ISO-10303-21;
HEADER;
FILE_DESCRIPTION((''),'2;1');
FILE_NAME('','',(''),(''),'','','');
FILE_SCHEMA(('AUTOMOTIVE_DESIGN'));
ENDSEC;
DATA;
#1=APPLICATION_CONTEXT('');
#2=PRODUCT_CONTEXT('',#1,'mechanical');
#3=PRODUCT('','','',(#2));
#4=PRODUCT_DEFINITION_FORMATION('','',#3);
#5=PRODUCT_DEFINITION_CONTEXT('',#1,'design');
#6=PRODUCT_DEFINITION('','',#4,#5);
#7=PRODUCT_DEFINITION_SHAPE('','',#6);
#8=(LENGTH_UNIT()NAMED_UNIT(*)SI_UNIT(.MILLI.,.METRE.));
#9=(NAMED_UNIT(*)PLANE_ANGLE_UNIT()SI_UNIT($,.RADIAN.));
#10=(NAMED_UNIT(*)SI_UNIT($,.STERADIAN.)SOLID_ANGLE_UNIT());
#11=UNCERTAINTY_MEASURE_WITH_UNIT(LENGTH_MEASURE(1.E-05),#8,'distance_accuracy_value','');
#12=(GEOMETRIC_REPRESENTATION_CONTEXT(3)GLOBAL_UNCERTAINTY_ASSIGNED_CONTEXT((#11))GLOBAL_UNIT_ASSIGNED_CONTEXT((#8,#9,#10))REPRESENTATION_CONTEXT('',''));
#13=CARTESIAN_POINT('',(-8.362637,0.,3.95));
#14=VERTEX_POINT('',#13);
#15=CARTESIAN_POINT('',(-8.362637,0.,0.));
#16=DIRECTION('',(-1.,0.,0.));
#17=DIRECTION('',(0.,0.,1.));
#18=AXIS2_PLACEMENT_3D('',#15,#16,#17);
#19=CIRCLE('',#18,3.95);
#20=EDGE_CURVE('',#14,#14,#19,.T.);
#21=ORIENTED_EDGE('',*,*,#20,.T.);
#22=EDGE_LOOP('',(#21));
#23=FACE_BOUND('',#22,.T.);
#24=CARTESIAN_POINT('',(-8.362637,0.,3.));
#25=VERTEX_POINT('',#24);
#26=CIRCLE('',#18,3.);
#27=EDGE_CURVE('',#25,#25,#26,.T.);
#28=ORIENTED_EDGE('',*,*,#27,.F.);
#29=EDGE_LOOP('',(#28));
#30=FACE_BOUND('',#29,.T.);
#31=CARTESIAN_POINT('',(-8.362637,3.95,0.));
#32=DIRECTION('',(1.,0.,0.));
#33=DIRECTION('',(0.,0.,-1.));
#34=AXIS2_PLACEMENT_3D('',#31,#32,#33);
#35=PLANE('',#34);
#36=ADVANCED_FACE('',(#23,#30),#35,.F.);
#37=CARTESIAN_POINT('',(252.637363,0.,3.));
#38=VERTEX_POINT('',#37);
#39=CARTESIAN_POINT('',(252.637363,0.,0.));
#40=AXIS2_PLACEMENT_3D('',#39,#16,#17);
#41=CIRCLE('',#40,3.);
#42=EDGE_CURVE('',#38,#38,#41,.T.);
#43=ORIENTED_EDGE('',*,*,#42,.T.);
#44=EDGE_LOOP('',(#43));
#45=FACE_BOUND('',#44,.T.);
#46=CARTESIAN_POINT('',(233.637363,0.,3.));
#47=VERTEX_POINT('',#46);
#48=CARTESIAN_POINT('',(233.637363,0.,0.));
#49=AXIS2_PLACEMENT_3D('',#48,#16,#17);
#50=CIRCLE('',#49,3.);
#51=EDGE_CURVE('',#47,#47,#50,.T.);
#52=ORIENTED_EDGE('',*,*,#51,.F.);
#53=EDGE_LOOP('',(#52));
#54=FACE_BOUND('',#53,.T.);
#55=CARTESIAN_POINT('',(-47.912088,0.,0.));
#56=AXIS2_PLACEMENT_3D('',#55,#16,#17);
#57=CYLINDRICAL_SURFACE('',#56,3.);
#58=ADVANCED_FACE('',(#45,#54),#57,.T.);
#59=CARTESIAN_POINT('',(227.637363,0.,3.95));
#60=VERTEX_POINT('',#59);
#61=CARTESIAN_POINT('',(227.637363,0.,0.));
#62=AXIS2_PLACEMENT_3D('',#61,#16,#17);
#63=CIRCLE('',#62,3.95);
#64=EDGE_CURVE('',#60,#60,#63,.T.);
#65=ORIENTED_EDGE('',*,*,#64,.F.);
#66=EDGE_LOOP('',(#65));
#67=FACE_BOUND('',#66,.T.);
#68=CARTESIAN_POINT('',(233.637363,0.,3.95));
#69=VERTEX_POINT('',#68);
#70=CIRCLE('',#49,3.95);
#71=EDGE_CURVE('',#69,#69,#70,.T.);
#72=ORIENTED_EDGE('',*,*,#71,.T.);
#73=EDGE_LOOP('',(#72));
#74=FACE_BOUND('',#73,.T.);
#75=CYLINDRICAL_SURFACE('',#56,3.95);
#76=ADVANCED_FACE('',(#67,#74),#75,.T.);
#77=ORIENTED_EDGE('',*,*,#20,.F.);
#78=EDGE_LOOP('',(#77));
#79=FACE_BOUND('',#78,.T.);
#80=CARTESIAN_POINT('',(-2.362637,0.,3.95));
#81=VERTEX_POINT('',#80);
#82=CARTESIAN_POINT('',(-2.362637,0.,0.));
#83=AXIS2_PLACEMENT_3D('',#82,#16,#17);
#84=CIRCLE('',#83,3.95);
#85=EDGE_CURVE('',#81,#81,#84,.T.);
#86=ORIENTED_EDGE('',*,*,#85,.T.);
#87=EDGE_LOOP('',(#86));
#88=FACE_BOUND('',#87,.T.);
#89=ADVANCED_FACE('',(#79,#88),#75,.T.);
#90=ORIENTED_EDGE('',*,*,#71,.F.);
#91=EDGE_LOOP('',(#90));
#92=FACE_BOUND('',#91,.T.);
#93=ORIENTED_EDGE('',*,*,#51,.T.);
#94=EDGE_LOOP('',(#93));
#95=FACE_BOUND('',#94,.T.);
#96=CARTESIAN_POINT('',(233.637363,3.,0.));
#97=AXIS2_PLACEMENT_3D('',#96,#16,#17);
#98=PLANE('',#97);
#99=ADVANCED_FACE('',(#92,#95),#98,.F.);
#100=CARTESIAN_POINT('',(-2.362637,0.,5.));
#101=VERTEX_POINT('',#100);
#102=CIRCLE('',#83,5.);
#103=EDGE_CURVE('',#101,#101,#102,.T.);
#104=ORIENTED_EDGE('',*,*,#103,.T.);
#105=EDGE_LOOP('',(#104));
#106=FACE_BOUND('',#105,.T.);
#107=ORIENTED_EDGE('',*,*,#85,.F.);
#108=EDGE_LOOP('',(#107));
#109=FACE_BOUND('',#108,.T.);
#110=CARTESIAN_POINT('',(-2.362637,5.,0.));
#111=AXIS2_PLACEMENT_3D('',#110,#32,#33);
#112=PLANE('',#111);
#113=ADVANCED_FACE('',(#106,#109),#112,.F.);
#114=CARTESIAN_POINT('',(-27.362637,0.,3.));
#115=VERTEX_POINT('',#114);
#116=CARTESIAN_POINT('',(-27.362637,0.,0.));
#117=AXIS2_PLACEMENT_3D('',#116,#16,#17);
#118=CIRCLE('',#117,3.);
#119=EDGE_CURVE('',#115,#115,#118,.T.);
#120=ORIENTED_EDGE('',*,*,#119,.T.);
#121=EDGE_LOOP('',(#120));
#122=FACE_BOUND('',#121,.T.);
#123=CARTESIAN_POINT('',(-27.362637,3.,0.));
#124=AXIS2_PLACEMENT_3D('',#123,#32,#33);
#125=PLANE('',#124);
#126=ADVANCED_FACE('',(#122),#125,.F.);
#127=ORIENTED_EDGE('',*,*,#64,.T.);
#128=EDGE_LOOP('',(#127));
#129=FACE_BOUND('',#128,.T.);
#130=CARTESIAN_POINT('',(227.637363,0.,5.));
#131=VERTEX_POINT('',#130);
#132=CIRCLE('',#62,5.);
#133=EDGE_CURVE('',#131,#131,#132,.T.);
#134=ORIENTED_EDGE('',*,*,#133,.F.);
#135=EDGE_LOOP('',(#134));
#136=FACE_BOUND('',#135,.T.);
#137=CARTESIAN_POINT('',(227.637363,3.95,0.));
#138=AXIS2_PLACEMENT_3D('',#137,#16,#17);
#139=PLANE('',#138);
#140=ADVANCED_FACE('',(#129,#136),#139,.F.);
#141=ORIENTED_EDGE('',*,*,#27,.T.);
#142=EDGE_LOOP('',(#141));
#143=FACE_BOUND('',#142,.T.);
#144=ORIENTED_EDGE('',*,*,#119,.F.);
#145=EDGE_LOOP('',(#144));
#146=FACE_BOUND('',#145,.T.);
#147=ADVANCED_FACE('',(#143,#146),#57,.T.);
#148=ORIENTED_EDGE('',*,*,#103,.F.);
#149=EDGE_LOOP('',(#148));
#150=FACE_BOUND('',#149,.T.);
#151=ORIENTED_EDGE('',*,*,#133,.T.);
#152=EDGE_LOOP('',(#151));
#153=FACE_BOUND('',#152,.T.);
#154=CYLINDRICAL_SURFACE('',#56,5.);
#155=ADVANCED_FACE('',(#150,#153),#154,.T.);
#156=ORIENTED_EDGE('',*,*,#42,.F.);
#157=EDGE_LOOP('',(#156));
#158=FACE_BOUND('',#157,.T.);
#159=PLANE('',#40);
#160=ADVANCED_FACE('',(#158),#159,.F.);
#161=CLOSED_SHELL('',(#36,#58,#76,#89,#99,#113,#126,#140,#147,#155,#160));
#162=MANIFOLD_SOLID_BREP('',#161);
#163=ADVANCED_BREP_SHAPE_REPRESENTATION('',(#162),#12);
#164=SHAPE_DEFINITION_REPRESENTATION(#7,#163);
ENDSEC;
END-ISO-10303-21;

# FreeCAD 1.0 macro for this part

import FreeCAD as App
import Part
import Sketcher
from FreeCAD import Vector
Q = App.Units.Quantity


def add_polygon(sketch, points):
    """Adds a closed chain of lines whose ends are joined by coincident constraints."""
    first, n = sketch.GeometryCount, len(points)
    for a, b in zip(points, points[1:] + points[:1]):
        sketch.addGeometry(Part.LineSegment(App.Vector(*a, 0), App.Vector(*b, 0)), False)
    for i in range(n):
        sketch.addConstraint(Sketcher.Constraint("Coincident", first + i, 2, first + (i + 1) % n, 1))

doc = App.newDocument("Part")
body = doc.addObject("PartDesign::Body", "Body")

# Sketch on XY plane
sketch1 = body.newObject("Sketcher::SketchObject", "Sketch")
sketch1.AttachmentSupport = (doc.getObject("XY_Plane"), [""])
sketch1.MapMode = "FlatFace"
add_polygon(sketch1, [(-27.362637, 0), (252.637363, 0), (252.637363, 3), (233.637363, 3), (233.637363, 3.95), (227.637363, 3.95), (227.637363, 5), (-2.362637, 5), (-2.362637, 3.95), (-8.362637, 3.95), (-8.362637, 3), (-27.362637, 3)])  # lines 0-11
sketch1.addConstraint(Sketcher.Constraint("Horizontal", 0))
sketch1.addConstraint(Sketcher.Constraint("Vertical", 1))
sketch1.addConstraint(Sketcher.Constraint("Horizontal", 2))
sketch1.addConstraint(Sketcher.Constraint("Vertical", 3))
sketch1.addConstraint(Sketcher.Constraint("Horizontal", 4))
sketch1.addConstraint(Sketcher.Constraint("Vertical", 5))
sketch1.addConstraint(Sketcher.Constraint("Horizontal", 6))
sketch1.addConstraint(Sketcher.Constraint("Vertical", 7))
sketch1.addConstraint(Sketcher.Constraint("Horizontal", 8))
sketch1.addConstraint(Sketcher.Constraint("Vertical", 9))
sketch1.addConstraint(Sketcher.Constraint("Horizontal", 10))
sketch1.addConstraint(Sketcher.Constraint("Vertical", 11))
sketch1.addConstraint(Sketcher.Constraint("PointOnObject", 0, 2, -1))
sketch1.addConstraint(Sketcher.Constraint("Horizontal", 4, 2, 7, 2))
sketch1.addConstraint(Sketcher.Constraint("Horizontal", 2, 2, 9, 2))
sketch1.addConstraint(Sketcher.Constraint("Equal", 4, 8))
sketch1.addConstraint(Sketcher.Constraint("Equal", 2, 10))
sketch1.addConstraint(Sketcher.Constraint("DistanceX", 0, 1, 0, 2, Q("280 mm")))
sketch1.addConstraint(Sketcher.Constraint("DistanceX", 2, 2, 2, 1, Q("19 mm")))
sketch1.addConstraint(Sketcher.Constraint("DistanceX", 4, 2, 4, 1, Q("6 mm")))
sketch1.addConstraint(Sketcher.Constraint("DistanceY", 1, 1, 1, 2, Q("3 mm")))
sketch1.addConstraint(Sketcher.Constraint("DistanceY", -1, 1, 5, 2, Q("5 mm")))
sketch1.addConstraint(Sketcher.Constraint("DistanceY", 3, 1, 3, 2, Q("0.95 mm")))
sketch1.addConstraint(Sketcher.Constraint("DistanceX", -1, 1, 0, 2, Q("252.637363 mm")))
revolution = body.newObject("PartDesign::Revolution", "Revolution")
revolution.Profile = sketch1
revolution.ReferenceAxis = (sketch1, ["H_Axis"])
revolution.Angle = 360

doc.recompute()
